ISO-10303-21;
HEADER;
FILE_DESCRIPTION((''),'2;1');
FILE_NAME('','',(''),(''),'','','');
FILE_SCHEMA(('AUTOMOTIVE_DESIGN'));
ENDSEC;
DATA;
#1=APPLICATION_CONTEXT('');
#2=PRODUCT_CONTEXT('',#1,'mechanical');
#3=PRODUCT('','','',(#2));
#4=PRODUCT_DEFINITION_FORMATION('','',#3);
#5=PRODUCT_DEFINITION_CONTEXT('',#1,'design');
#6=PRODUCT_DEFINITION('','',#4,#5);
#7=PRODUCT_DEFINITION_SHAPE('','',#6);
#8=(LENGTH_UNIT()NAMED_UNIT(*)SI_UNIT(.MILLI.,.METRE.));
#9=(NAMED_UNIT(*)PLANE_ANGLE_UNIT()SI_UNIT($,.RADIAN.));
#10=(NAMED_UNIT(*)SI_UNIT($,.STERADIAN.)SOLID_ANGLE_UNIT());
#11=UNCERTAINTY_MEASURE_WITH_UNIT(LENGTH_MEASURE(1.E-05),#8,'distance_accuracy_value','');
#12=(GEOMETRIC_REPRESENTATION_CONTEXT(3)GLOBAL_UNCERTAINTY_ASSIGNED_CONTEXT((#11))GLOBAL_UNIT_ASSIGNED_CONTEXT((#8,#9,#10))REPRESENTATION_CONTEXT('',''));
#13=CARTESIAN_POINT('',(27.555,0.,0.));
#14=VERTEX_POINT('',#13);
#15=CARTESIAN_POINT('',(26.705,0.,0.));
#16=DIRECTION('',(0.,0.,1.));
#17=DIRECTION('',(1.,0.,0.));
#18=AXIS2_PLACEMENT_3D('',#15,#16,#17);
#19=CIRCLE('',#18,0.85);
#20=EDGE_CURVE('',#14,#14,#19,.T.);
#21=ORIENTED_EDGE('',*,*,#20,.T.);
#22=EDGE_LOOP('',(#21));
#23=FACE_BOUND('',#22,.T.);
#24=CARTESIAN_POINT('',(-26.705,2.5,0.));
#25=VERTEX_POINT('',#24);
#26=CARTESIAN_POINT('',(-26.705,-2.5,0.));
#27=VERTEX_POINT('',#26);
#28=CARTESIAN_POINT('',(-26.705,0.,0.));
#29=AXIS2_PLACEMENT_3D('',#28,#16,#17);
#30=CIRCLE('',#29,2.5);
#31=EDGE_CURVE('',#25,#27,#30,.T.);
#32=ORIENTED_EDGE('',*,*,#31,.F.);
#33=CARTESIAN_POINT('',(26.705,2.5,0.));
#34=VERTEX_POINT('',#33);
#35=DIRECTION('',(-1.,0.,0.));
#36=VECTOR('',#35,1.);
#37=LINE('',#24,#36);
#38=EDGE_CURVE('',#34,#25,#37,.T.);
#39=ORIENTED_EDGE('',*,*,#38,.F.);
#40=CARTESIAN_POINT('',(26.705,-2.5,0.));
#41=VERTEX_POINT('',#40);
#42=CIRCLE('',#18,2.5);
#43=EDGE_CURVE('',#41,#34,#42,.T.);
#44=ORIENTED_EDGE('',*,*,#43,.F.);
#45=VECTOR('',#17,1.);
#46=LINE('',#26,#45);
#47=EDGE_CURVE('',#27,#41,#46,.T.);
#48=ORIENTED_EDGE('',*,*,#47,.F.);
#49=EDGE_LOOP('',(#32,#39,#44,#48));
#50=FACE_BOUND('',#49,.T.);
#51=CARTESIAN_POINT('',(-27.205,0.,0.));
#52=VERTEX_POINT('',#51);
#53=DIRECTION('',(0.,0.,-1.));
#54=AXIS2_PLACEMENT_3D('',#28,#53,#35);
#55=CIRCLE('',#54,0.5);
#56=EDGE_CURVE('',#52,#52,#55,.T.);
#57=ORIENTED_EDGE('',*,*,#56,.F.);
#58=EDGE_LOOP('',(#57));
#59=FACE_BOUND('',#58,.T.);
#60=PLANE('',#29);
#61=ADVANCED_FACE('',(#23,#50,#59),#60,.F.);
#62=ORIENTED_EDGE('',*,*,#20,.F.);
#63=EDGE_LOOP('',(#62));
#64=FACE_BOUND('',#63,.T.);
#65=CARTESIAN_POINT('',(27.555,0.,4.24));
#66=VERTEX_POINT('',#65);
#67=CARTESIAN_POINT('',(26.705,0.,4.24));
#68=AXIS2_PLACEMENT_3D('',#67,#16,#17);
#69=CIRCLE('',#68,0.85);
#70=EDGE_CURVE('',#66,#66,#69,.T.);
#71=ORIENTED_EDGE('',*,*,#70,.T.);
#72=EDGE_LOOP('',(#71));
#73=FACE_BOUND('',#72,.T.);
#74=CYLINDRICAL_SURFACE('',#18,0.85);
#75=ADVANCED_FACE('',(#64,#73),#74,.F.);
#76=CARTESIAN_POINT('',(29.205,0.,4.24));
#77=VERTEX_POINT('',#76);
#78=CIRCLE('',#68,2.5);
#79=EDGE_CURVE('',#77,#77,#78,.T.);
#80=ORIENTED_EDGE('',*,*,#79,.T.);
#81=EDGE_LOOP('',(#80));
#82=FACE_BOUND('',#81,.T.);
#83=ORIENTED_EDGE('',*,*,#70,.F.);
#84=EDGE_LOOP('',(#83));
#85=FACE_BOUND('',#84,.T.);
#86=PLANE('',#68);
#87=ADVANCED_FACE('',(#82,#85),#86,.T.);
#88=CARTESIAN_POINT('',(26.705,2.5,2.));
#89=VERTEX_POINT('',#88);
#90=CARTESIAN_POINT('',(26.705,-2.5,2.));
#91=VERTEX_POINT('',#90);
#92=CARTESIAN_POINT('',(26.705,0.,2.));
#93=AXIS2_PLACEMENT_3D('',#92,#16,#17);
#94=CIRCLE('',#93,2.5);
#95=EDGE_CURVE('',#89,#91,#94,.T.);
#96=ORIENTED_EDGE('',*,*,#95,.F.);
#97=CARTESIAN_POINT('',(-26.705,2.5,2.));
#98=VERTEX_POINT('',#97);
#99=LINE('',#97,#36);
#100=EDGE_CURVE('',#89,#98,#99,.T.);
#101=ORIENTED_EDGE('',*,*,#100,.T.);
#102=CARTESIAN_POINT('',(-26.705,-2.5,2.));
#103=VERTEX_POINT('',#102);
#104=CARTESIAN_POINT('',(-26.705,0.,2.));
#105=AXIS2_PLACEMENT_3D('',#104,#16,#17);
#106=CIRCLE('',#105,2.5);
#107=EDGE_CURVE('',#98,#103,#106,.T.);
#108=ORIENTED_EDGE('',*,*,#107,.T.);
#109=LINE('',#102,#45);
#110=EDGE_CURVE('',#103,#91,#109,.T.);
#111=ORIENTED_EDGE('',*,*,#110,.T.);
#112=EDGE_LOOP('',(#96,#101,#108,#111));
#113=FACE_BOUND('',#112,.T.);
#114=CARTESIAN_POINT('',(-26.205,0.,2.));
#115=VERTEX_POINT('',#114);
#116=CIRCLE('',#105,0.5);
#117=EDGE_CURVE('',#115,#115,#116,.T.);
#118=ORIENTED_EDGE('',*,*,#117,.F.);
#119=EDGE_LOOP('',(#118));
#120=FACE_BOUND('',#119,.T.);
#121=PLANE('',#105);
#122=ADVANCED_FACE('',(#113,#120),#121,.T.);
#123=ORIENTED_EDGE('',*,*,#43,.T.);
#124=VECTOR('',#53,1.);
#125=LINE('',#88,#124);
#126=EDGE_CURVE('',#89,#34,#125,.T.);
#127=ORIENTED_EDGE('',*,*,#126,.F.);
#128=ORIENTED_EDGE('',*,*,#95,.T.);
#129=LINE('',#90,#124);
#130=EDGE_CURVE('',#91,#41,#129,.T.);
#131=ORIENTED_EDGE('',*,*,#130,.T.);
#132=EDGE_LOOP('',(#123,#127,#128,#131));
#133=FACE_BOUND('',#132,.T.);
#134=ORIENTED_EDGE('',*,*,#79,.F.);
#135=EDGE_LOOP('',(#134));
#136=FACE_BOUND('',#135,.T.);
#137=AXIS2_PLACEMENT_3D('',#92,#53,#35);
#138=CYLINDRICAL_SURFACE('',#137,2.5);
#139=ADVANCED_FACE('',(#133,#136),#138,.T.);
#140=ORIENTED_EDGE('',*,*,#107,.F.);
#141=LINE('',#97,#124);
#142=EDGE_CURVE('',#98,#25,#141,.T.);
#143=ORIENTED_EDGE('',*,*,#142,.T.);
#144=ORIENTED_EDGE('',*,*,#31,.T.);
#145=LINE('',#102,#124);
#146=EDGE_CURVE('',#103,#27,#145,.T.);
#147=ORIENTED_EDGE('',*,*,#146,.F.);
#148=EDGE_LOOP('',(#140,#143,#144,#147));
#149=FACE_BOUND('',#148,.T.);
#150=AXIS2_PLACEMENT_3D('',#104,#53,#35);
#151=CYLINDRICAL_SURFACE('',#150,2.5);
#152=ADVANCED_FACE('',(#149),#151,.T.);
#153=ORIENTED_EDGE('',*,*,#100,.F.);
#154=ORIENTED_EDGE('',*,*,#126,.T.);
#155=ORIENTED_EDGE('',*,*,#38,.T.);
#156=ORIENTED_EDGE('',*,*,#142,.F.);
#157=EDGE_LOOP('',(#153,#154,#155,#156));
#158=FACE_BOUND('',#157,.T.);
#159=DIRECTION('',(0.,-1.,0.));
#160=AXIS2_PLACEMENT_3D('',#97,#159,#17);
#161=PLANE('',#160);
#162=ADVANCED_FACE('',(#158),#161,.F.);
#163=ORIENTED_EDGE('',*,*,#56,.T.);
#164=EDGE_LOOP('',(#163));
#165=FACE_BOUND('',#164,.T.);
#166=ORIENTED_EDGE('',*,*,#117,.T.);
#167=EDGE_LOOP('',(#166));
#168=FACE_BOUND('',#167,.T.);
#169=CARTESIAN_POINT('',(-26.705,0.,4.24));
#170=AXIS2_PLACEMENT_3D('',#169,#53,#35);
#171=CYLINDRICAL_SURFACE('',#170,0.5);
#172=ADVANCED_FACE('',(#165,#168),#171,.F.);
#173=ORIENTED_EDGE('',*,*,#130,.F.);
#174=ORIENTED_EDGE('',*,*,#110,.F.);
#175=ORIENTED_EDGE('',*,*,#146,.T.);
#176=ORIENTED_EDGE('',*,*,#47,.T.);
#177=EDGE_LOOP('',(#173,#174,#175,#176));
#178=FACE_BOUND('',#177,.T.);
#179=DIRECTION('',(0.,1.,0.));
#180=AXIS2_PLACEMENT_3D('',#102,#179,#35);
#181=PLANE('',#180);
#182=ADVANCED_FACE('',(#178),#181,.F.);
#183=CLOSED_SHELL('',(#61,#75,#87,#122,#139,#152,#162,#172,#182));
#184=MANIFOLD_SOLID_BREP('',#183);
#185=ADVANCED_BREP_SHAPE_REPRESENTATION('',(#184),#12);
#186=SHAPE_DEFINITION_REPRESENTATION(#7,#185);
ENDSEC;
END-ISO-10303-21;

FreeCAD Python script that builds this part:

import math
import FreeCAD as App
import Part
import Sketcher
from FreeCAD import Vector

doc = App.newDocument("Part")
params = doc.addObject("Spreadsheet::Sheet", "Params")
for row, (alias, value) in enumerate([
    ("sketch1_radius", "2.5 mm"),
    ("sketch1_width", "53.41 mm"),
    ("pad1_length", "2 mm"),
    ("sketch2_diameter", "5 mm"),
    ("pad2_length", "2.24 mm"),
    ("sketch3_diameter", "1 mm"),
    ("sketch4_diameter", "1.7 mm"),
], start=1):
    params.set(f"A{row}", alias)
    params.set(f"B{row}", "=" + value)
    params.setAlias(f"B{row}", alias)

body = doc.addObject("PartDesign::Body", "Body")

sketch1 = body.newObject("Sketcher::SketchObject", "Sketch")
sketch1.AttachmentSupport = (doc.getObject("XY_Plane"), [""])
sketch1.MapMode = "FlatFace"
sketch1.addGeometry([
    Part.LineSegment(Vector(26.7, 2.5, 0), Vector(-26.7, 2.5, 0)),
    Part.ArcOfCircle(Part.Circle(Vector(-26.7, 0, 0), Vector(0, 0, 1), 2.5), math.radians(90), math.radians(270)),
    Part.LineSegment(Vector(-26.7, -2.5, 0), Vector(26.7, -2.5, 0)),
    Part.ArcOfCircle(Part.Circle(Vector(26.7, 0, 0), Vector(0, 0, 1), 2.5), math.radians(-90), math.radians(90)),
], False)
sketch1.addConstraint([
    Sketcher.Constraint("Tangent", 0, 2, 1, 1),
    Sketcher.Constraint("Tangent", 1, 2, 2, 1),
    Sketcher.Constraint("Tangent", 2, 2, 3, 1),
    Sketcher.Constraint("Tangent", 3, 2, 0, 1),
    Sketcher.Constraint("Horizontal", 0),
    Sketcher.Constraint("Horizontal", 2),
    Sketcher.Constraint("Symmetric", 1, 3, 3, 3, -1, 1),
    Sketcher.Constraint("Radius", 1, 2.5),
    Sketcher.Constraint("DistanceX", 0, 2, 0, 1, 53.41),
])
sketch1.setExpression("Constraints[7]", "Params.sketch1_radius")
sketch1.setExpression("Constraints[8]", "Params.sketch1_width")
pad1 = body.newObject("PartDesign::Pad", "Pad")
pad1.Profile = sketch1
pad1.setExpression("Length", "Params.pad1_length")

sketch2 = body.newObject("Sketcher::SketchObject", "Sketch001")
sketch2.AttachmentSupport = (doc.getObject("XY_Plane"), [""])
sketch2.MapMode = "FlatFace"
sketch2.AttachmentOffset = App.Placement(Vector(0, 0, 2), App.Rotation())
sketch2.addGeometry(Part.Circle(Vector(26.7, 0, 0), Vector(0, 0, 1), 2.5), False)
sketch2.addConstraint([
    Sketcher.Constraint("PointOnObject", 0, 3, -1),
    Sketcher.Constraint("Diameter", 0, 5.0),
    Sketcher.Constraint("DistanceX", -1, 1, 0, 3, 26.705),
])
sketch2.setExpression("Constraints[1]", "Params.sketch2_diameter")
pad2 = body.newObject("PartDesign::Pad", "Pad001")
pad2.Profile = sketch2
pad2.setExpression("Length", "Params.pad2_length")

sketch3 = body.newObject("Sketcher::SketchObject", "Sketch002")
sketch3.AttachmentSupport = (doc.getObject("XY_Plane"), [""])
sketch3.MapMode = "FlatFace"
sketch3.addGeometry(Part.Circle(Vector(-26.7, 0, 0), Vector(0, 0, 1), 0.5), False)
sketch3.addConstraint([
    Sketcher.Constraint("PointOnObject", 0, 3, -1),
    Sketcher.Constraint("Diameter", 0, 1.0),
    Sketcher.Constraint("DistanceX", 0, 3, -1, 1, 26.705),
])
sketch3.setExpression("Constraints[1]", "Params.sketch3_diameter")
pocket1 = body.newObject("PartDesign::Pocket", "Pocket")
pocket1.Profile = sketch3
pocket1.Type = "ThroughAll"
pocket1.Reversed = True

sketch4 = body.newObject("Sketcher::SketchObject", "Sketch003")
sketch4.AttachmentSupport = (doc.getObject("XY_Plane"), [""])
sketch4.MapMode = "FlatFace"
sketch4.AttachmentOffset = App.Placement(Vector(0, 0, 4.24), App.Rotation())
sketch4.addGeometry(Part.Circle(Vector(26.7, 0, 0), Vector(0, 0, 1), 0.8), False)
sketch4.addConstraint([
    Sketcher.Constraint("PointOnObject", 0, 3, -1),
    Sketcher.Constraint("Diameter", 0, 1.7),
    Sketcher.Constraint("DistanceX", -1, 1, 0, 3, 26.705),
])
sketch4.setExpression("Constraints[1]", "Params.sketch4_diameter")
pocket2 = body.newObject("PartDesign::Pocket", "Pocket001")
pocket2.Profile = sketch4
pocket2.Type = "ThroughAll"

doc.recompute()
